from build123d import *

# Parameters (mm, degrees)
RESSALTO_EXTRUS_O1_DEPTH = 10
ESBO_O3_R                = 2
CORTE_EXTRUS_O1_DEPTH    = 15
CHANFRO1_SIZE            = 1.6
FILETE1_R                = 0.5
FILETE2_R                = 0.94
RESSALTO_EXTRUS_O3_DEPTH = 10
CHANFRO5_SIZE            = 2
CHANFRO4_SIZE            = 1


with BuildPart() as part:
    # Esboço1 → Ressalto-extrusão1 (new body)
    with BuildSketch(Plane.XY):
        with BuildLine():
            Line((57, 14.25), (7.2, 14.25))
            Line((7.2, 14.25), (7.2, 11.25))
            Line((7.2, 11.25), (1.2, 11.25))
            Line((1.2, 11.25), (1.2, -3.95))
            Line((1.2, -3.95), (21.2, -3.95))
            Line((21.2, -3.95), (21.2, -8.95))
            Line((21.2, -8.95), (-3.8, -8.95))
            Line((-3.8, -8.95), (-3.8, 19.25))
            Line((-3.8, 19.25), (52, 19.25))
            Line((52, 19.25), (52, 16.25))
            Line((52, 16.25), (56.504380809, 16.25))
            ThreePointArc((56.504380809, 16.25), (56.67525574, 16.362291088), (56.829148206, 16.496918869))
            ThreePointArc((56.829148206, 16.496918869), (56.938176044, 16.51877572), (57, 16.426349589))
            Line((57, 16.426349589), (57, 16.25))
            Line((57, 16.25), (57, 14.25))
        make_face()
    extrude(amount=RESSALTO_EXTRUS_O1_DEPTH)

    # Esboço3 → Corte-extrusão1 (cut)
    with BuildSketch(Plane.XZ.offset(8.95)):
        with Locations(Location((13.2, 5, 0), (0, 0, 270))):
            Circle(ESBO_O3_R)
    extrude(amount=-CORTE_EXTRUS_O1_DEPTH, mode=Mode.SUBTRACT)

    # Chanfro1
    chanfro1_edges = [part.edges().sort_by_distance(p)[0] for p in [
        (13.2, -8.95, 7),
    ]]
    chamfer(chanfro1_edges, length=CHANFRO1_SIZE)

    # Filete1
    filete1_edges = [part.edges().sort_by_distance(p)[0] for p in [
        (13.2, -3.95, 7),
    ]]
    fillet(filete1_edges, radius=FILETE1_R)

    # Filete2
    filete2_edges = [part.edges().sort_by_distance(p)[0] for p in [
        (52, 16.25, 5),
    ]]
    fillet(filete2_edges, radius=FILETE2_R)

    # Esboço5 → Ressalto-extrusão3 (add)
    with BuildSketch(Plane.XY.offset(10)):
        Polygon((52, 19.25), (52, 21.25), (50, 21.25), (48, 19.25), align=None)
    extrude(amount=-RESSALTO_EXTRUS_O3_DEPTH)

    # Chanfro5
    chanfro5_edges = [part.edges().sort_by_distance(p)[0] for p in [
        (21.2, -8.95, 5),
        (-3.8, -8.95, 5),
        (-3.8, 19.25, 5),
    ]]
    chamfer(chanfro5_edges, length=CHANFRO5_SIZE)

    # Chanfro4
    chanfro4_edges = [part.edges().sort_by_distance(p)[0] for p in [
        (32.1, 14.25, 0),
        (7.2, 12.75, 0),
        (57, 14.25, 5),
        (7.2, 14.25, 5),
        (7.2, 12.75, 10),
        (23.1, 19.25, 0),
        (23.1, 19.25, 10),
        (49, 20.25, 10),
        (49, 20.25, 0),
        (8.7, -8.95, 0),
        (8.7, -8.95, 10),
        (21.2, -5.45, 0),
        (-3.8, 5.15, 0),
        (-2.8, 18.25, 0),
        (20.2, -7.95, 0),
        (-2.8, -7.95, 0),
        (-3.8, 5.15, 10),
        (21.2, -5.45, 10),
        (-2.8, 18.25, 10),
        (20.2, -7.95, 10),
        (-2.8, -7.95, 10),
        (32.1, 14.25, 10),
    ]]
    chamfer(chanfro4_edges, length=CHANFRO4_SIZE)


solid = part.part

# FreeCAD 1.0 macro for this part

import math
import FreeCAD as App
import Part
import Sketcher
Q = App.Units.Quantity


def edges_at(feature, points):
    """Names of the edges that pass closest to the given points."""
    edges = feature.Shape.Edges
    near = lambda p: min(range(len(edges)), key=lambda i: edges[i].distToShape(Part.Vertex(*p))[0])
    return sorted({f"Edge{near(p) + 1}" for p in points})

doc = App.newDocument("Part")
body = doc.addObject("PartDesign::Body", "Body")

sketch1 = doc.addObject("Sketcher::SketchObject", "Sketch")
body.addObject(sketch1)
sketch1.AttachmentSupport = (doc.XY_Plane, [""])
sketch1.MapMode = "FlatFace"
sketch1.addGeometry([
    Part.LineSegment(App.Vector(7.2, 14.25, 0), App.Vector(57, 14.25, 0)),
    Part.LineSegment(App.Vector(57, 14.25, 0), App.Vector(57, 16.43, 0)),
    Part.ArcOfCircle(Part.Circle(App.Vector(56.9, 16.43, 0), App.Vector(0, 0, 1), 0.1), math.radians(0), math.radians(135)),
    Part.ArcOfCircle(Part.Circle(App.Vector(55.77, 17.55, 0), App.Vector(0, 0, 1), 1.49), math.radians(-60.62), math.radians(-44.89)),
    Part.LineSegment(App.Vector(56.5, 16.25, 0), App.Vector(52, 16.25, 0)),
    Part.LineSegment(App.Vector(52, 16.25, 0), App.Vector(52, 19.25, 0)),
    Part.LineSegment(App.Vector(52, 19.25, 0), App.Vector(-3.8, 19.25, 0)),
    Part.LineSegment(App.Vector(-3.8, 19.25, 0), App.Vector(-3.8, -8.95, 0)),
    Part.LineSegment(App.Vector(-3.8, -8.95, 0), App.Vector(21.2, -8.95, 0)),
    Part.LineSegment(App.Vector(21.2, -8.95, 0), App.Vector(21.2, -3.95, 0)),
    Part.LineSegment(App.Vector(21.2, -3.95, 0), App.Vector(1.2, -3.95, 0)),
    Part.LineSegment(App.Vector(1.2, -3.95, 0), App.Vector(1.2, 11.25, 0)),
    Part.LineSegment(App.Vector(1.2, 11.25, 0), App.Vector(7.2, 11.25, 0)),
    Part.LineSegment(App.Vector(7.2, 11.25, 0), App.Vector(7.2, 14.25, 0)),
], False)
sketch1.addConstraint([
    Sketcher.Constraint("Coincident", 0, 2, 1, 1),
    Sketcher.Constraint("Tangent", 1, 2, 2, 1),
    Sketcher.Constraint("Tangent", 2, 2, 3, 2),
    Sketcher.Constraint("Coincident", 3, 1, 4, 1),
    Sketcher.Constraint("Coincident", 4, 2, 5, 1),
    Sketcher.Constraint("Coincident", 5, 2, 6, 1),
    Sketcher.Constraint("Coincident", 6, 2, 7, 1),
    Sketcher.Constraint("Coincident", 7, 2, 8, 1),
    Sketcher.Constraint("Coincident", 8, 2, 9, 1),
    Sketcher.Constraint("Coincident", 9, 2, 10, 1),
    Sketcher.Constraint("Coincident", 10, 2, 11, 1),
    Sketcher.Constraint("Coincident", 11, 2, 12, 1),
    Sketcher.Constraint("Coincident", 12, 2, 13, 1),
    Sketcher.Constraint("Coincident", 13, 2, 0, 1),
    Sketcher.Constraint("Horizontal", 0),
    Sketcher.Constraint("Vertical", 1),
    Sketcher.Constraint("Horizontal", 4),
    Sketcher.Constraint("Vertical", 5),
    Sketcher.Constraint("Horizontal", 6),
    Sketcher.Constraint("Vertical", 7),
    Sketcher.Constraint("Horizontal", 8),
    Sketcher.Constraint("Vertical", 9),
    Sketcher.Constraint("Horizontal", 10),
    Sketcher.Constraint("Vertical", 11),
    Sketcher.Constraint("Horizontal", 12),
    Sketcher.Constraint("Vertical", 13),
    Sketcher.Constraint("Equal", 5, 13),
    Sketcher.Constraint("Radius", 2, Q("0.1 mm")),
    Sketcher.Constraint("DistanceX", 8, 1, 8, 2, Q("25 mm")),
    Sketcher.Constraint("DistanceX", 10, 2, 10, 1, Q("20 mm")),
    Sketcher.Constraint("DistanceX", 12, 1, 12, 2, Q("6 mm")),
    Sketcher.Constraint("DistanceY", 5, 1, 5, 2, Q("3 mm")),
    Sketcher.Constraint("DistanceY", 9, 1, 9, 2, Q("5 mm")),
    Sketcher.Constraint("DistanceX", 0, 1, 0, 2, Q("49.8 mm")),
    Sketcher.Constraint("DistanceX", 6, 2, 6, 1, Q("55.8 mm")),
    Sketcher.Constraint("DistanceY", 7, 2, 7, 1, Q("28.2 mm")),
    Sketcher.Constraint("DistanceY", 11, 1, 11, 2, Q("15.2 mm")),
    Sketcher.Constraint("DistanceX", -1, 1, 0, 2, Q("57 mm")),
    Sketcher.Constraint("DistanceY", -1, 1, 0, 2, Q("14.25 mm")),
    Sketcher.Constraint("Radius", 3, Q("1.489963 mm")),
    Sketcher.Constraint("DistanceX", 4, 2, 4, 1, Q("4.504381 mm")),
    Sketcher.Constraint("DistanceY", 1, 1, 1, 2, Q("2.17635 mm")),
])
pad1 = doc.addObject("PartDesign::Pad", "Pad")
body.addObject(pad1)
pad1.Profile = sketch1
pad1.Length = 10

sketch2 = doc.addObject("Sketcher::SketchObject", "Sketch001")
body.addObject(sketch2)
sketch2.AttachmentSupport = (doc.XZ_Plane, [""])
sketch2.MapMode = "FlatFace"
sketch2.AttachmentOffset = App.Placement(App.Vector(0, 0, 8.95), App.Rotation())
sketch2.addGeometry(Part.Circle(App.Vector(13.2, 5, 0), App.Vector(0, 0, 1), 2), False)
sketch2.addConstraint([
    Sketcher.Constraint("Diameter", 0, Q("4 mm")),
    Sketcher.Constraint("DistanceY", -1, 1, 0, 3, Q("5 mm")),
    Sketcher.Constraint("DistanceX", -1, 1, 0, 3, Q("13.2 mm")),
])
pocket1 = doc.addObject("PartDesign::Pocket", "Pocket")
body.addObject(pocket1)
pocket1.Profile = sketch2
pocket1.Length = 15
doc.recompute()

chamfer = doc.addObject("PartDesign::Chamfer", "Chamfer")
body.addObject(chamfer)
chamfer.Base = (pocket1, edges_at(pocket1, [(13.2, -8.95, 7)]))
chamfer.Size = 1.6
doc.recompute()

fillet = doc.addObject("PartDesign::Fillet", "Fillet")
body.addObject(fillet)
fillet.Base = (chamfer, edges_at(chamfer, [(13.2, -3.95, 7)]))
fillet.Radius = 0.5
doc.recompute()

fillet2 = doc.addObject("PartDesign::Fillet", "Fillet001")
body.addObject(fillet2)
fillet2.Base = (fillet, edges_at(fillet, [(52, 16.25, 5)]))
fillet2.Radius = 0.94

sketch3 = doc.addObject("Sketcher::SketchObject", "Sketch002")
body.addObject(sketch3)
sketch3.AttachmentSupport = (doc.XY_Plane, [""])
sketch3.MapMode = "FlatFace"
sketch3.AttachmentOffset = App.Placement(App.Vector(0, 0, 10), App.Rotation())
sketch3.addGeometry([
    Part.LineSegment(App.Vector(52, 19.2, 0), App.Vector(52, 21.2, 0)),
    Part.LineSegment(App.Vector(52, 21.2, 0), App.Vector(50, 21.2, 0)),
    Part.LineSegment(App.Vector(50, 21.2, 0), App.Vector(48, 19.2, 0)),
    Part.LineSegment(App.Vector(48, 19.2, 0), App.Vector(52, 19.2, 0)),
], False)
sketch3.addConstraint([
    Sketcher.Constraint("Coincident", 0, 2, 1, 1),
    Sketcher.Constraint("Coincident", 1, 2, 2, 1),
    Sketcher.Constraint("Coincident", 2, 2, 3, 1),
    Sketcher.Constraint("Coincident", 3, 2, 0, 1),
    Sketcher.Constraint("Vertical", 0),
    Sketcher.Constraint("Horizontal", 1),
    Sketcher.Constraint("Horizontal", 3),
    Sketcher.Constraint("Equal", 1, 0),
    Sketcher.Constraint("DistanceX", 1, 2, 1, 1, Q("2 mm")),
    Sketcher.Constraint("DistanceX", 3, 1, 3, 2, Q("4 mm")),
    Sketcher.Constraint("DistanceX", -1, 1, 0, 2, Q("52 mm")),
    Sketcher.Constraint("DistanceY", -1, 1, 0, 2, Q("21.25 mm")),
])
pad2 = doc.addObject("PartDesign::Pad", "Pad001")
body.addObject(pad2)
pad2.Profile = sketch3
pad2.Length = 10
pad2.Reversed = True
doc.recompute()

chamfer2 = doc.addObject("PartDesign::Chamfer", "Chamfer001")
body.addObject(chamfer2)
chamfer2.Base = (pad2, edges_at(pad2, [(21.2, -8.95, 5), (-3.8, -8.95, 5), (-3.8, 19.25, 5)]))
chamfer2.Size = 2
doc.recompute()

chamfer3 = doc.addObject("PartDesign::Chamfer", "Chamfer002")
body.addObject(chamfer3)
chamfer3.Base = (chamfer2, edges_at(chamfer2, [
    (32.1, 14.25, 0),
    (7.2, 12.75, 0),
    (57, 14.25, 5),
    (7.2, 14.25, 5),
    (7.2, 12.75, 10),
    (23.1, 19.25, 0),
    (23.1, 19.25, 10),
    (49, 20.25, 10),
    (49, 20.25, 0),
    (8.7, -8.95, 0),
    (8.7, -8.95, 10),
    (21.2, -5.45, 0),
    (-3.8, 5.15, 0),
    (-2.8, 18.25, 0),
    (20.2, -7.95, 0),
    (-2.8, -7.95, 0),
    (-3.8, 5.15, 10),
    (21.2, -5.45, 10),
    (-2.8, 18.25, 10),
    (20.2, -7.95, 10),
    (-2.8, -7.95, 10),
    (32.1, 14.25, 10),
]))
chamfer3.Size = 1

doc.recompute()
